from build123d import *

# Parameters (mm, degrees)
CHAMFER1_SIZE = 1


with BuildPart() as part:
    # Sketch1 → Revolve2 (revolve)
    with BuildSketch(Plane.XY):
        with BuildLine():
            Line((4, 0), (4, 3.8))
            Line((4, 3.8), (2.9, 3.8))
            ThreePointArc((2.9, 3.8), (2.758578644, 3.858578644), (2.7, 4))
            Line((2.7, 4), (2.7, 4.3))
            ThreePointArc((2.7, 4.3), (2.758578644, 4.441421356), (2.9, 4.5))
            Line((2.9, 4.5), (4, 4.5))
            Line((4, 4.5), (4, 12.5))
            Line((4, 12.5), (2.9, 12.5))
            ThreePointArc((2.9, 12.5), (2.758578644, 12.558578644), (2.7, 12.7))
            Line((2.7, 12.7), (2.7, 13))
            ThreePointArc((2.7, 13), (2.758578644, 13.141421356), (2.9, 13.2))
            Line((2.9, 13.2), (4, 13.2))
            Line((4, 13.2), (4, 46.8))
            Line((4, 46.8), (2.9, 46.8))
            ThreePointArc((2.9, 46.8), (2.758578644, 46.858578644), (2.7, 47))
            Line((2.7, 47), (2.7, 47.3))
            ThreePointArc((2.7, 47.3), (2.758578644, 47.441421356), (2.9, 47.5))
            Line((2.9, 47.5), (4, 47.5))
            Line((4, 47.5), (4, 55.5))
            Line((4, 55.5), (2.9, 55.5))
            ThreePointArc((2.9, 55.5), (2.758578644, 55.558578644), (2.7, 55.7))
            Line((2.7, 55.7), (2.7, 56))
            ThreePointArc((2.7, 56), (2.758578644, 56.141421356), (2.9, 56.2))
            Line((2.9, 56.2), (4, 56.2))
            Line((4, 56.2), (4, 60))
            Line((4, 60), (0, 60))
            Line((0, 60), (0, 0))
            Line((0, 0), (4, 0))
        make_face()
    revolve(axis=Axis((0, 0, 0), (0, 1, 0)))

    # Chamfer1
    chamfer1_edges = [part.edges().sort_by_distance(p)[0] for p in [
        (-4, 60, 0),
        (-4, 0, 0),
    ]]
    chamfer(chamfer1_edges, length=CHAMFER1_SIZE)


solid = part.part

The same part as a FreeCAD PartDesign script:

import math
import FreeCAD as App
import Part
import Sketcher

V = App.Vector
Q = App.Units.Quantity


def edges_at(feature, points):
    """Names of the edges that pass closest to the given points."""
    edges = feature.Shape.Edges
    near = lambda p: min(range(len(edges)), key=lambda i: edges[i].distToShape(Part.Vertex(*p))[0])
    return sorted({f"Edge{near(p) + 1}" for p in points})

doc = App.newDocument("Part")
params = doc.addObject("Spreadsheet::Sheet", "Params")
for row, (alias, value) in enumerate([
    ("sketch1_radius", "0.2 mm"),
    ("sketch1_width", "4 mm"),
    ("sketch1_height", "8 mm"),
    ("sketch1_height2", "60 mm"),
    ("sketch1_width2", "1.1 mm"),
    ("revolution_angle", "360 deg"),
    ("chamfer_size", "1 mm"),
], start=1):
    params.set(f"A{row}", alias)
    params.set(f"B{row}", "=" + value)
    params.setAlias(f"B{row}", alias)

body = doc.addObject("PartDesign::Body", "Body")

sketch1 = body.newObject("Sketcher::SketchObject", "Sketch")
sketch1.AttachmentSupport = (doc.getObject("XY_Plane"), [""])
sketch1.MapMode = "FlatFace"
sketch1.addGeometry([
    Part.LineSegment(V(4, 0, 0), V(4, 3.8, 0)),
    Part.LineSegment(V(4, 3.8, 0), V(2.9, 3.8, 0)),
    Part.ArcOfCircle(Part.Circle(V(2.9, 4, 0), V(0, 0, 1), 0.2), math.radians(-180), math.radians(-90)),
    Part.LineSegment(V(2.7, 4, 0), V(2.7, 4.3, 0)),
    Part.ArcOfCircle(Part.Circle(V(2.9, 4.3, 0), V(0, 0, 1), 0.2), math.radians(90), math.radians(180)),
    Part.LineSegment(V(2.9, 4.5, 0), V(4, 4.5, 0)),
    Part.LineSegment(V(4, 4.5, 0), V(4, 12.5, 0)),
    Part.LineSegment(V(4, 12.5, 0), V(2.9, 12.5, 0)),
    Part.ArcOfCircle(Part.Circle(V(2.9, 12.7, 0), V(0, 0, 1), 0.2), math.radians(-180), math.radians(-90)),
    Part.LineSegment(V(2.7, 12.7, 0), V(2.7, 13, 0)),
    Part.ArcOfCircle(Part.Circle(V(2.9, 13, 0), V(0, 0, 1), 0.2), math.radians(90), math.radians(180)),
    Part.LineSegment(V(2.9, 13.2, 0), V(4, 13.2, 0)),
    Part.LineSegment(V(4, 13.2, 0), V(4, 46.8, 0)),
    Part.LineSegment(V(4, 46.8, 0), V(2.9, 46.8, 0)),
    Part.ArcOfCircle(Part.Circle(V(2.9, 47, 0), V(0, 0, 1), 0.2), math.radians(-180), math.radians(-90)),
    Part.LineSegment(V(2.7, 47, 0), V(2.7, 47.3, 0)),
    Part.ArcOfCircle(Part.Circle(V(2.9, 47.3, 0), V(0, 0, 1), 0.2), math.radians(90), math.radians(180)),
    Part.LineSegment(V(2.9, 47.5, 0), V(4, 47.5, 0)),
    Part.LineSegment(V(4, 47.5, 0), V(4, 55.5, 0)),
    Part.LineSegment(V(4, 55.5, 0), V(2.9, 55.5, 0)),
    Part.ArcOfCircle(Part.Circle(V(2.9, 55.7, 0), V(0, 0, 1), 0.2), math.radians(-180), math.radians(-90)),
    Part.LineSegment(V(2.7, 55.7, 0), V(2.7, 56, 0)),
    Part.ArcOfCircle(Part.Circle(V(2.9, 56, 0), V(0, 0, 1), 0.2), math.radians(90), math.radians(180)),
    Part.LineSegment(V(2.9, 56.2, 0), V(4, 56.2, 0)),
    Part.LineSegment(V(4, 56.2, 0), V(4, 60, 0)),
    Part.LineSegment(V(4, 60, 0), V(0, 60, 0)),
    Part.LineSegment(V(0, 60, 0), V(0, 0, 0)),
    Part.LineSegment(V(0, 0, 0), V(4, 0, 0)),
], False)
sketch1.addConstraint([
    Sketcher.Constraint("Coincident", 0, 2, 1, 1),
    Sketcher.Constraint("Tangent", 1, 2, 2, 2),
    Sketcher.Constraint("Tangent", 2, 1, 3, 1),
    Sketcher.Constraint("Tangent", 3, 2, 4, 2),
    Sketcher.Constraint("Tangent", 4, 1, 5, 1),
    Sketcher.Constraint("Coincident", 5, 2, 6, 1),
    Sketcher.Constraint("Coincident", 6, 2, 7, 1),
    Sketcher.Constraint("Tangent", 7, 2, 8, 2),
    Sketcher.Constraint("Tangent", 8, 1, 9, 1),
    Sketcher.Constraint("Tangent", 9, 2, 10, 2),
    Sketcher.Constraint("Tangent", 10, 1, 11, 1),
    Sketcher.Constraint("Coincident", 11, 2, 12, 1),
    Sketcher.Constraint("Coincident", 12, 2, 13, 1),
    Sketcher.Constraint("Tangent", 13, 2, 14, 2),
    Sketcher.Constraint("Tangent", 14, 1, 15, 1),
    Sketcher.Constraint("Tangent", 15, 2, 16, 2),
    Sketcher.Constraint("Tangent", 16, 1, 17, 1),
    Sketcher.Constraint("Coincident", 17, 2, 18, 1),
    Sketcher.Constraint("Coincident", 18, 2, 19, 1),
    Sketcher.Constraint("Tangent", 19, 2, 20, 2),
    Sketcher.Constraint("Tangent", 20, 1, 21, 1),
    Sketcher.Constraint("Tangent", 21, 2, 22, 2),
    Sketcher.Constraint("Tangent", 22, 1, 23, 1),
    Sketcher.Constraint("Coincident", 23, 2, 24, 1),
    Sketcher.Constraint("Coincident", 24, 2, 25, 1),
    Sketcher.Constraint("Coincident", 25, 2, 26, 1),
    Sketcher.Constraint("Coincident", 26, 2, 27, 1),
    Sketcher.Constraint("Coincident", 27, 2, 0, 1),
    Sketcher.Constraint("Vertical", 0),
    Sketcher.Constraint("Horizontal", 1),
    Sketcher.Constraint("Vertical", 3),
    Sketcher.Constraint("Horizontal", 5),
    Sketcher.Constraint("Vertical", 6),
    Sketcher.Constraint("Horizontal", 7),
    Sketcher.Constraint("Vertical", 9),
    Sketcher.Constraint("Horizontal", 11),
    Sketcher.Constraint("Vertical", 12),
    Sketcher.Constraint("Horizontal", 13),
    Sketcher.Constraint("Vertical", 15),
    Sketcher.Constraint("Horizontal", 17),
    Sketcher.Constraint("Vertical", 18),
    Sketcher.Constraint("Horizontal", 19),
    Sketcher.Constraint("Vertical", 21),
    Sketcher.Constraint("Horizontal", 23),
    Sketcher.Constraint("Vertical", 24),
    Sketcher.Constraint("Horizontal", 25),
    Sketcher.Constraint("Vertical", 26),
    Sketcher.Constraint("Horizontal", 27),
    Sketcher.Constraint("Coincident", 26, 2, -1, 1),
    Sketcher.Constraint("Equal", 2, 4),
    Sketcher.Constraint("Equal", 4, 8),
    Sketcher.Constraint("Equal", 8, 10),
    Sketcher.Constraint("Equal", 10, 14),
    Sketcher.Constraint("Equal", 14, 16),
    Sketcher.Constraint("Equal", 16, 20),
    Sketcher.Constraint("Equal", 20, 22),
    Sketcher.Constraint("Vertical", 4, 3, 8, 3),
    Sketcher.Constraint("Vertical", 10, 3, 14, 3),
    Sketcher.Constraint("Vertical", 16, 3, 20, 3),
    Sketcher.Constraint("Vertical", 0, 2, 5, 2),
    Sketcher.Constraint("Vertical", 6, 2, 11, 2),
    Sketcher.Constraint("Vertical", 12, 2, 17, 2),
    Sketcher.Constraint("Vertical", 18, 2, 23, 2),
    Sketcher.Constraint("Equal", 3, 9),
    Sketcher.Constraint("Equal", 9, 15),
    Sketcher.Constraint("Equal", 6, 18),
    Sketcher.Constraint("Equal", 15, 21),
    Sketcher.Constraint("Equal", 0, 24),
    Sketcher.Constraint("Radius", 2, Q("0.2 mm")),
    Sketcher.Constraint("DistanceX", 25, 2, 25, 1, Q("4 mm")),
    Sketcher.Constraint("DistanceY", 6, 1, 6, 2, Q("8 mm")),
    Sketcher.Constraint("DistanceY", 26, 2, 26, 1, Q("60 mm")),
    Sketcher.Constraint("DistanceX", 1, 2, 1, 1, Q("1.1 mm")),
    Sketcher.Constraint("DistanceY", 0, 1, 0, 2, Q("3.8 mm")),
    Sketcher.Constraint("DistanceY", 3, 1, 3, 2, Q("0.3 mm")),
])
sketch1.setExpression("Constraints[68]", "Params.sketch1_radius")
sketch1.setExpression("Constraints[69]", "Params.sketch1_width")
sketch1.setExpression("Constraints[70]", "Params.sketch1_height")
sketch1.setExpression("Constraints[71]", "Params.sketch1_height2")
sketch1.setExpression("Constraints[72]", "Params.sketch1_width2")
revolution = body.newObject("PartDesign::Revolution", "Revolution")
revolution.Profile = sketch1
revolution.ReferenceAxis = (sketch1, ["V_Axis"])
revolution.setExpression("Angle", "Params.revolution_angle")
doc.recompute()

chamfer = body.newObject("PartDesign::Chamfer", "Chamfer")
chamfer.Base = (revolution, edges_at(revolution, [(-4, 60, 0), (-4, 0, 0)]))
chamfer.setExpression("Size", "Params.chamfer_size")

doc.recompute()
